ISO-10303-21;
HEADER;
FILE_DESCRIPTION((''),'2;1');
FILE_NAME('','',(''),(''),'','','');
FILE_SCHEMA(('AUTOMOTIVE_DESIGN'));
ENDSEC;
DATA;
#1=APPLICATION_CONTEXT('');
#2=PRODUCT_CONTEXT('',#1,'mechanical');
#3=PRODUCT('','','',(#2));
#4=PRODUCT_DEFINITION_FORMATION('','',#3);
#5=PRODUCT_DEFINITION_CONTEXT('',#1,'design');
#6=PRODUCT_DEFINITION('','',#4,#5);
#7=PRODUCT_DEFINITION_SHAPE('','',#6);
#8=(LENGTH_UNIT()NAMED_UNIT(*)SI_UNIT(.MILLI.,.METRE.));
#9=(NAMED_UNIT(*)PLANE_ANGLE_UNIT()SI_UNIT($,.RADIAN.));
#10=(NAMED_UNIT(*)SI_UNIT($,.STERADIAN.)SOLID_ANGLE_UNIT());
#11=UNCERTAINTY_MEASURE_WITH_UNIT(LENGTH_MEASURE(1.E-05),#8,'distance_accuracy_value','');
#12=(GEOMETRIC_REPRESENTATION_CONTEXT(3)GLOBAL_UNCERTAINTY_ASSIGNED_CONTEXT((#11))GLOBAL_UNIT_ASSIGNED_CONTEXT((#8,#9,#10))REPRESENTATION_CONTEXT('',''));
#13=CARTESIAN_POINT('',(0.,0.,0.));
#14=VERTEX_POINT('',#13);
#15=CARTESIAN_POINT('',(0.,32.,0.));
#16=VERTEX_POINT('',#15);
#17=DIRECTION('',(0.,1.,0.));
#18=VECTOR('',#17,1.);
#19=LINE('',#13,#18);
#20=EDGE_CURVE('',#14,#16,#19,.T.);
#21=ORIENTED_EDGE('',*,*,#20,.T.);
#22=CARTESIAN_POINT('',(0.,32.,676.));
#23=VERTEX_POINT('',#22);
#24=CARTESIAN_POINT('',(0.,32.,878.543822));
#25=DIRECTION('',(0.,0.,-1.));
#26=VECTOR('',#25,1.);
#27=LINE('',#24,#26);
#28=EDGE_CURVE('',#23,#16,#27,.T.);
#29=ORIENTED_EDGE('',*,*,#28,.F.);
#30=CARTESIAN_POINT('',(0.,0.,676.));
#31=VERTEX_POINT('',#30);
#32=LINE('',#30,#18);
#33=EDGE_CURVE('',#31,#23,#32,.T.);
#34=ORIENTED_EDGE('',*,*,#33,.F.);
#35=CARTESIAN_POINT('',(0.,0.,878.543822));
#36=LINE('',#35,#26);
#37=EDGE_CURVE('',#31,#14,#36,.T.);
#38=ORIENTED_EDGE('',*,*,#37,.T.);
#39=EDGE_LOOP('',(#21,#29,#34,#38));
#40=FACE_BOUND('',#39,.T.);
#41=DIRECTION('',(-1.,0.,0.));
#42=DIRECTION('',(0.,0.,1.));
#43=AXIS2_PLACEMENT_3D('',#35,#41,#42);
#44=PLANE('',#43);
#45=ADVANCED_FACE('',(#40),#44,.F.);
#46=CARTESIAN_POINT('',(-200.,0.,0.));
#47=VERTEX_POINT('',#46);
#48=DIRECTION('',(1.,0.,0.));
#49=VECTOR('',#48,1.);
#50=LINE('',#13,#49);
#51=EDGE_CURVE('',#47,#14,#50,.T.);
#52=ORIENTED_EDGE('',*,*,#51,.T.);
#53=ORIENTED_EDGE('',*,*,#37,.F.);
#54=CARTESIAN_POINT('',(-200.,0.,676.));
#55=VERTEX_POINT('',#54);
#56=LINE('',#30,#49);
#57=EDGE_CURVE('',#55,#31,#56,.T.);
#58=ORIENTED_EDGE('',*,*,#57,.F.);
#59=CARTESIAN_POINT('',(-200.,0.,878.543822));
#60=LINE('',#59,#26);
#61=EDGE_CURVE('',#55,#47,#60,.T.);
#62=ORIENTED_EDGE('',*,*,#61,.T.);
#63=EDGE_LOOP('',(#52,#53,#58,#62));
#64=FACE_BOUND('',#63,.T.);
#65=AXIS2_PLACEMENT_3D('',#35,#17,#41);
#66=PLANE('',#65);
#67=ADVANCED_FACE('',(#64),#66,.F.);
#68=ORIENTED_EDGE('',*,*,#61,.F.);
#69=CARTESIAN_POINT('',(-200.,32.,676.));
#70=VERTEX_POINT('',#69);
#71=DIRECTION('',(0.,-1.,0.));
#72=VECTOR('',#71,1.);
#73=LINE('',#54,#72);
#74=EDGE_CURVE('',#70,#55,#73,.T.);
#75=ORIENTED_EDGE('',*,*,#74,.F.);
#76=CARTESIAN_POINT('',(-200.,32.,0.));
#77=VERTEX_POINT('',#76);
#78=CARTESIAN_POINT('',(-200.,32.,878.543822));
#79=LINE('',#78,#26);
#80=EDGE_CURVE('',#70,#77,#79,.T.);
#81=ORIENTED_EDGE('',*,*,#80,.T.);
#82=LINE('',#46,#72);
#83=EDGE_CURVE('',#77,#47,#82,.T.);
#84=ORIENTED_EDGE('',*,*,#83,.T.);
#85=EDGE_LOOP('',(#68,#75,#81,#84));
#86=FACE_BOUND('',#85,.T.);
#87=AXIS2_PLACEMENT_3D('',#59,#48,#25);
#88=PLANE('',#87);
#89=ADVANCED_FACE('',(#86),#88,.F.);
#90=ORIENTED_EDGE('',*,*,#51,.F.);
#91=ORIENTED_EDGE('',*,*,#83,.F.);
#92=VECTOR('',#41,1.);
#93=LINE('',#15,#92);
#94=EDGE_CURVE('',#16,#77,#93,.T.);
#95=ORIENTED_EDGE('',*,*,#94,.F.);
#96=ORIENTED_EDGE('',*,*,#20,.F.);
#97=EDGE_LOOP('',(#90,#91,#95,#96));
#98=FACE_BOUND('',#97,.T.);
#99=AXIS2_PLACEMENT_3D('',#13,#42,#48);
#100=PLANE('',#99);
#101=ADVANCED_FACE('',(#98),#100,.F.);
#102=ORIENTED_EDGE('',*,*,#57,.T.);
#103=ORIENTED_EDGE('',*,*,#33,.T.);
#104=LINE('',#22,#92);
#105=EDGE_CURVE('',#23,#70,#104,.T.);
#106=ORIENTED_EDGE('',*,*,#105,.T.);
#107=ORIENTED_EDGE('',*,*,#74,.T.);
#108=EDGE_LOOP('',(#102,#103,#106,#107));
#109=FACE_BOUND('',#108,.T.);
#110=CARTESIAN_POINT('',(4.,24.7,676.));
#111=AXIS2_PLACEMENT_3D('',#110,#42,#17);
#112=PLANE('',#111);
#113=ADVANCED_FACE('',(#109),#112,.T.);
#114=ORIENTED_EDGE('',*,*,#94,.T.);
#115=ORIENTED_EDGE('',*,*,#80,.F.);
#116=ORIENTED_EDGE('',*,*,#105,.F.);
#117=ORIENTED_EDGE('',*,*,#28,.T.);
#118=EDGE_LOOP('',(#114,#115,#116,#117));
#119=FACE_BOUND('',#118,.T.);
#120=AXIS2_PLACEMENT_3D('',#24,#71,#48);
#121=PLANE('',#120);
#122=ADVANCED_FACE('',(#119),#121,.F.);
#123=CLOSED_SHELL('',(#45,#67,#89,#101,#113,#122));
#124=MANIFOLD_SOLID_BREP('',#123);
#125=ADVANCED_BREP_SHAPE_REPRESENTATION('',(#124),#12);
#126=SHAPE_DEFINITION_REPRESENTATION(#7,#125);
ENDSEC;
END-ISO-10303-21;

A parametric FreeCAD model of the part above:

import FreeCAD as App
import Part
import Sketcher

V = App.Vector

doc = App.newDocument("Part")
body = doc.addObject("PartDesign::Body", "Body")

sketch1 = doc.addObject("Sketcher::SketchObject", "Sketch")
body.addObject(sketch1)
sketch1.AttachmentSupport = (doc.XY_Plane, [""])
sketch1.MapMode = "FlatFace"
sketch1.addGeometry([
    Part.LineSegment(V(-200, 32, 0), V(-200, 0, 0)),
    Part.LineSegment(V(-200, 0, 0), V(0, 0, 0)),
    Part.LineSegment(V(0, 0, 0), V(0, 32, 0)),
    Part.LineSegment(V(0, 32, 0), V(-200, 32, 0)),
], False)
sketch1.addConstraint([
    Sketcher.Constraint("Coincident", 0, 2, 1, 1),
    Sketcher.Constraint("Coincident", 1, 2, 2, 1),
    Sketcher.Constraint("Coincident", 2, 2, 3, 1),
    Sketcher.Constraint("Coincident", 3, 2, 0, 1),
    Sketcher.Constraint("Vertical", 0),
    Sketcher.Constraint("Horizontal", 1),
    Sketcher.Constraint("Vertical", 2),
    Sketcher.Constraint("Horizontal", 3),
    Sketcher.Constraint("Coincident", 1, 2, -1, 1),
    Sketcher.Constraint("DistanceX", 1, 1, 1, 2, 200.0),
    Sketcher.Constraint("DistanceY", 0, 2, 0, 1, 32.0),
])
pad1 = doc.addObject("PartDesign::Pad", "Pad")
body.addObject(pad1)
pad1.Profile = sketch1
pad1.Length = 676

doc.recompute()
